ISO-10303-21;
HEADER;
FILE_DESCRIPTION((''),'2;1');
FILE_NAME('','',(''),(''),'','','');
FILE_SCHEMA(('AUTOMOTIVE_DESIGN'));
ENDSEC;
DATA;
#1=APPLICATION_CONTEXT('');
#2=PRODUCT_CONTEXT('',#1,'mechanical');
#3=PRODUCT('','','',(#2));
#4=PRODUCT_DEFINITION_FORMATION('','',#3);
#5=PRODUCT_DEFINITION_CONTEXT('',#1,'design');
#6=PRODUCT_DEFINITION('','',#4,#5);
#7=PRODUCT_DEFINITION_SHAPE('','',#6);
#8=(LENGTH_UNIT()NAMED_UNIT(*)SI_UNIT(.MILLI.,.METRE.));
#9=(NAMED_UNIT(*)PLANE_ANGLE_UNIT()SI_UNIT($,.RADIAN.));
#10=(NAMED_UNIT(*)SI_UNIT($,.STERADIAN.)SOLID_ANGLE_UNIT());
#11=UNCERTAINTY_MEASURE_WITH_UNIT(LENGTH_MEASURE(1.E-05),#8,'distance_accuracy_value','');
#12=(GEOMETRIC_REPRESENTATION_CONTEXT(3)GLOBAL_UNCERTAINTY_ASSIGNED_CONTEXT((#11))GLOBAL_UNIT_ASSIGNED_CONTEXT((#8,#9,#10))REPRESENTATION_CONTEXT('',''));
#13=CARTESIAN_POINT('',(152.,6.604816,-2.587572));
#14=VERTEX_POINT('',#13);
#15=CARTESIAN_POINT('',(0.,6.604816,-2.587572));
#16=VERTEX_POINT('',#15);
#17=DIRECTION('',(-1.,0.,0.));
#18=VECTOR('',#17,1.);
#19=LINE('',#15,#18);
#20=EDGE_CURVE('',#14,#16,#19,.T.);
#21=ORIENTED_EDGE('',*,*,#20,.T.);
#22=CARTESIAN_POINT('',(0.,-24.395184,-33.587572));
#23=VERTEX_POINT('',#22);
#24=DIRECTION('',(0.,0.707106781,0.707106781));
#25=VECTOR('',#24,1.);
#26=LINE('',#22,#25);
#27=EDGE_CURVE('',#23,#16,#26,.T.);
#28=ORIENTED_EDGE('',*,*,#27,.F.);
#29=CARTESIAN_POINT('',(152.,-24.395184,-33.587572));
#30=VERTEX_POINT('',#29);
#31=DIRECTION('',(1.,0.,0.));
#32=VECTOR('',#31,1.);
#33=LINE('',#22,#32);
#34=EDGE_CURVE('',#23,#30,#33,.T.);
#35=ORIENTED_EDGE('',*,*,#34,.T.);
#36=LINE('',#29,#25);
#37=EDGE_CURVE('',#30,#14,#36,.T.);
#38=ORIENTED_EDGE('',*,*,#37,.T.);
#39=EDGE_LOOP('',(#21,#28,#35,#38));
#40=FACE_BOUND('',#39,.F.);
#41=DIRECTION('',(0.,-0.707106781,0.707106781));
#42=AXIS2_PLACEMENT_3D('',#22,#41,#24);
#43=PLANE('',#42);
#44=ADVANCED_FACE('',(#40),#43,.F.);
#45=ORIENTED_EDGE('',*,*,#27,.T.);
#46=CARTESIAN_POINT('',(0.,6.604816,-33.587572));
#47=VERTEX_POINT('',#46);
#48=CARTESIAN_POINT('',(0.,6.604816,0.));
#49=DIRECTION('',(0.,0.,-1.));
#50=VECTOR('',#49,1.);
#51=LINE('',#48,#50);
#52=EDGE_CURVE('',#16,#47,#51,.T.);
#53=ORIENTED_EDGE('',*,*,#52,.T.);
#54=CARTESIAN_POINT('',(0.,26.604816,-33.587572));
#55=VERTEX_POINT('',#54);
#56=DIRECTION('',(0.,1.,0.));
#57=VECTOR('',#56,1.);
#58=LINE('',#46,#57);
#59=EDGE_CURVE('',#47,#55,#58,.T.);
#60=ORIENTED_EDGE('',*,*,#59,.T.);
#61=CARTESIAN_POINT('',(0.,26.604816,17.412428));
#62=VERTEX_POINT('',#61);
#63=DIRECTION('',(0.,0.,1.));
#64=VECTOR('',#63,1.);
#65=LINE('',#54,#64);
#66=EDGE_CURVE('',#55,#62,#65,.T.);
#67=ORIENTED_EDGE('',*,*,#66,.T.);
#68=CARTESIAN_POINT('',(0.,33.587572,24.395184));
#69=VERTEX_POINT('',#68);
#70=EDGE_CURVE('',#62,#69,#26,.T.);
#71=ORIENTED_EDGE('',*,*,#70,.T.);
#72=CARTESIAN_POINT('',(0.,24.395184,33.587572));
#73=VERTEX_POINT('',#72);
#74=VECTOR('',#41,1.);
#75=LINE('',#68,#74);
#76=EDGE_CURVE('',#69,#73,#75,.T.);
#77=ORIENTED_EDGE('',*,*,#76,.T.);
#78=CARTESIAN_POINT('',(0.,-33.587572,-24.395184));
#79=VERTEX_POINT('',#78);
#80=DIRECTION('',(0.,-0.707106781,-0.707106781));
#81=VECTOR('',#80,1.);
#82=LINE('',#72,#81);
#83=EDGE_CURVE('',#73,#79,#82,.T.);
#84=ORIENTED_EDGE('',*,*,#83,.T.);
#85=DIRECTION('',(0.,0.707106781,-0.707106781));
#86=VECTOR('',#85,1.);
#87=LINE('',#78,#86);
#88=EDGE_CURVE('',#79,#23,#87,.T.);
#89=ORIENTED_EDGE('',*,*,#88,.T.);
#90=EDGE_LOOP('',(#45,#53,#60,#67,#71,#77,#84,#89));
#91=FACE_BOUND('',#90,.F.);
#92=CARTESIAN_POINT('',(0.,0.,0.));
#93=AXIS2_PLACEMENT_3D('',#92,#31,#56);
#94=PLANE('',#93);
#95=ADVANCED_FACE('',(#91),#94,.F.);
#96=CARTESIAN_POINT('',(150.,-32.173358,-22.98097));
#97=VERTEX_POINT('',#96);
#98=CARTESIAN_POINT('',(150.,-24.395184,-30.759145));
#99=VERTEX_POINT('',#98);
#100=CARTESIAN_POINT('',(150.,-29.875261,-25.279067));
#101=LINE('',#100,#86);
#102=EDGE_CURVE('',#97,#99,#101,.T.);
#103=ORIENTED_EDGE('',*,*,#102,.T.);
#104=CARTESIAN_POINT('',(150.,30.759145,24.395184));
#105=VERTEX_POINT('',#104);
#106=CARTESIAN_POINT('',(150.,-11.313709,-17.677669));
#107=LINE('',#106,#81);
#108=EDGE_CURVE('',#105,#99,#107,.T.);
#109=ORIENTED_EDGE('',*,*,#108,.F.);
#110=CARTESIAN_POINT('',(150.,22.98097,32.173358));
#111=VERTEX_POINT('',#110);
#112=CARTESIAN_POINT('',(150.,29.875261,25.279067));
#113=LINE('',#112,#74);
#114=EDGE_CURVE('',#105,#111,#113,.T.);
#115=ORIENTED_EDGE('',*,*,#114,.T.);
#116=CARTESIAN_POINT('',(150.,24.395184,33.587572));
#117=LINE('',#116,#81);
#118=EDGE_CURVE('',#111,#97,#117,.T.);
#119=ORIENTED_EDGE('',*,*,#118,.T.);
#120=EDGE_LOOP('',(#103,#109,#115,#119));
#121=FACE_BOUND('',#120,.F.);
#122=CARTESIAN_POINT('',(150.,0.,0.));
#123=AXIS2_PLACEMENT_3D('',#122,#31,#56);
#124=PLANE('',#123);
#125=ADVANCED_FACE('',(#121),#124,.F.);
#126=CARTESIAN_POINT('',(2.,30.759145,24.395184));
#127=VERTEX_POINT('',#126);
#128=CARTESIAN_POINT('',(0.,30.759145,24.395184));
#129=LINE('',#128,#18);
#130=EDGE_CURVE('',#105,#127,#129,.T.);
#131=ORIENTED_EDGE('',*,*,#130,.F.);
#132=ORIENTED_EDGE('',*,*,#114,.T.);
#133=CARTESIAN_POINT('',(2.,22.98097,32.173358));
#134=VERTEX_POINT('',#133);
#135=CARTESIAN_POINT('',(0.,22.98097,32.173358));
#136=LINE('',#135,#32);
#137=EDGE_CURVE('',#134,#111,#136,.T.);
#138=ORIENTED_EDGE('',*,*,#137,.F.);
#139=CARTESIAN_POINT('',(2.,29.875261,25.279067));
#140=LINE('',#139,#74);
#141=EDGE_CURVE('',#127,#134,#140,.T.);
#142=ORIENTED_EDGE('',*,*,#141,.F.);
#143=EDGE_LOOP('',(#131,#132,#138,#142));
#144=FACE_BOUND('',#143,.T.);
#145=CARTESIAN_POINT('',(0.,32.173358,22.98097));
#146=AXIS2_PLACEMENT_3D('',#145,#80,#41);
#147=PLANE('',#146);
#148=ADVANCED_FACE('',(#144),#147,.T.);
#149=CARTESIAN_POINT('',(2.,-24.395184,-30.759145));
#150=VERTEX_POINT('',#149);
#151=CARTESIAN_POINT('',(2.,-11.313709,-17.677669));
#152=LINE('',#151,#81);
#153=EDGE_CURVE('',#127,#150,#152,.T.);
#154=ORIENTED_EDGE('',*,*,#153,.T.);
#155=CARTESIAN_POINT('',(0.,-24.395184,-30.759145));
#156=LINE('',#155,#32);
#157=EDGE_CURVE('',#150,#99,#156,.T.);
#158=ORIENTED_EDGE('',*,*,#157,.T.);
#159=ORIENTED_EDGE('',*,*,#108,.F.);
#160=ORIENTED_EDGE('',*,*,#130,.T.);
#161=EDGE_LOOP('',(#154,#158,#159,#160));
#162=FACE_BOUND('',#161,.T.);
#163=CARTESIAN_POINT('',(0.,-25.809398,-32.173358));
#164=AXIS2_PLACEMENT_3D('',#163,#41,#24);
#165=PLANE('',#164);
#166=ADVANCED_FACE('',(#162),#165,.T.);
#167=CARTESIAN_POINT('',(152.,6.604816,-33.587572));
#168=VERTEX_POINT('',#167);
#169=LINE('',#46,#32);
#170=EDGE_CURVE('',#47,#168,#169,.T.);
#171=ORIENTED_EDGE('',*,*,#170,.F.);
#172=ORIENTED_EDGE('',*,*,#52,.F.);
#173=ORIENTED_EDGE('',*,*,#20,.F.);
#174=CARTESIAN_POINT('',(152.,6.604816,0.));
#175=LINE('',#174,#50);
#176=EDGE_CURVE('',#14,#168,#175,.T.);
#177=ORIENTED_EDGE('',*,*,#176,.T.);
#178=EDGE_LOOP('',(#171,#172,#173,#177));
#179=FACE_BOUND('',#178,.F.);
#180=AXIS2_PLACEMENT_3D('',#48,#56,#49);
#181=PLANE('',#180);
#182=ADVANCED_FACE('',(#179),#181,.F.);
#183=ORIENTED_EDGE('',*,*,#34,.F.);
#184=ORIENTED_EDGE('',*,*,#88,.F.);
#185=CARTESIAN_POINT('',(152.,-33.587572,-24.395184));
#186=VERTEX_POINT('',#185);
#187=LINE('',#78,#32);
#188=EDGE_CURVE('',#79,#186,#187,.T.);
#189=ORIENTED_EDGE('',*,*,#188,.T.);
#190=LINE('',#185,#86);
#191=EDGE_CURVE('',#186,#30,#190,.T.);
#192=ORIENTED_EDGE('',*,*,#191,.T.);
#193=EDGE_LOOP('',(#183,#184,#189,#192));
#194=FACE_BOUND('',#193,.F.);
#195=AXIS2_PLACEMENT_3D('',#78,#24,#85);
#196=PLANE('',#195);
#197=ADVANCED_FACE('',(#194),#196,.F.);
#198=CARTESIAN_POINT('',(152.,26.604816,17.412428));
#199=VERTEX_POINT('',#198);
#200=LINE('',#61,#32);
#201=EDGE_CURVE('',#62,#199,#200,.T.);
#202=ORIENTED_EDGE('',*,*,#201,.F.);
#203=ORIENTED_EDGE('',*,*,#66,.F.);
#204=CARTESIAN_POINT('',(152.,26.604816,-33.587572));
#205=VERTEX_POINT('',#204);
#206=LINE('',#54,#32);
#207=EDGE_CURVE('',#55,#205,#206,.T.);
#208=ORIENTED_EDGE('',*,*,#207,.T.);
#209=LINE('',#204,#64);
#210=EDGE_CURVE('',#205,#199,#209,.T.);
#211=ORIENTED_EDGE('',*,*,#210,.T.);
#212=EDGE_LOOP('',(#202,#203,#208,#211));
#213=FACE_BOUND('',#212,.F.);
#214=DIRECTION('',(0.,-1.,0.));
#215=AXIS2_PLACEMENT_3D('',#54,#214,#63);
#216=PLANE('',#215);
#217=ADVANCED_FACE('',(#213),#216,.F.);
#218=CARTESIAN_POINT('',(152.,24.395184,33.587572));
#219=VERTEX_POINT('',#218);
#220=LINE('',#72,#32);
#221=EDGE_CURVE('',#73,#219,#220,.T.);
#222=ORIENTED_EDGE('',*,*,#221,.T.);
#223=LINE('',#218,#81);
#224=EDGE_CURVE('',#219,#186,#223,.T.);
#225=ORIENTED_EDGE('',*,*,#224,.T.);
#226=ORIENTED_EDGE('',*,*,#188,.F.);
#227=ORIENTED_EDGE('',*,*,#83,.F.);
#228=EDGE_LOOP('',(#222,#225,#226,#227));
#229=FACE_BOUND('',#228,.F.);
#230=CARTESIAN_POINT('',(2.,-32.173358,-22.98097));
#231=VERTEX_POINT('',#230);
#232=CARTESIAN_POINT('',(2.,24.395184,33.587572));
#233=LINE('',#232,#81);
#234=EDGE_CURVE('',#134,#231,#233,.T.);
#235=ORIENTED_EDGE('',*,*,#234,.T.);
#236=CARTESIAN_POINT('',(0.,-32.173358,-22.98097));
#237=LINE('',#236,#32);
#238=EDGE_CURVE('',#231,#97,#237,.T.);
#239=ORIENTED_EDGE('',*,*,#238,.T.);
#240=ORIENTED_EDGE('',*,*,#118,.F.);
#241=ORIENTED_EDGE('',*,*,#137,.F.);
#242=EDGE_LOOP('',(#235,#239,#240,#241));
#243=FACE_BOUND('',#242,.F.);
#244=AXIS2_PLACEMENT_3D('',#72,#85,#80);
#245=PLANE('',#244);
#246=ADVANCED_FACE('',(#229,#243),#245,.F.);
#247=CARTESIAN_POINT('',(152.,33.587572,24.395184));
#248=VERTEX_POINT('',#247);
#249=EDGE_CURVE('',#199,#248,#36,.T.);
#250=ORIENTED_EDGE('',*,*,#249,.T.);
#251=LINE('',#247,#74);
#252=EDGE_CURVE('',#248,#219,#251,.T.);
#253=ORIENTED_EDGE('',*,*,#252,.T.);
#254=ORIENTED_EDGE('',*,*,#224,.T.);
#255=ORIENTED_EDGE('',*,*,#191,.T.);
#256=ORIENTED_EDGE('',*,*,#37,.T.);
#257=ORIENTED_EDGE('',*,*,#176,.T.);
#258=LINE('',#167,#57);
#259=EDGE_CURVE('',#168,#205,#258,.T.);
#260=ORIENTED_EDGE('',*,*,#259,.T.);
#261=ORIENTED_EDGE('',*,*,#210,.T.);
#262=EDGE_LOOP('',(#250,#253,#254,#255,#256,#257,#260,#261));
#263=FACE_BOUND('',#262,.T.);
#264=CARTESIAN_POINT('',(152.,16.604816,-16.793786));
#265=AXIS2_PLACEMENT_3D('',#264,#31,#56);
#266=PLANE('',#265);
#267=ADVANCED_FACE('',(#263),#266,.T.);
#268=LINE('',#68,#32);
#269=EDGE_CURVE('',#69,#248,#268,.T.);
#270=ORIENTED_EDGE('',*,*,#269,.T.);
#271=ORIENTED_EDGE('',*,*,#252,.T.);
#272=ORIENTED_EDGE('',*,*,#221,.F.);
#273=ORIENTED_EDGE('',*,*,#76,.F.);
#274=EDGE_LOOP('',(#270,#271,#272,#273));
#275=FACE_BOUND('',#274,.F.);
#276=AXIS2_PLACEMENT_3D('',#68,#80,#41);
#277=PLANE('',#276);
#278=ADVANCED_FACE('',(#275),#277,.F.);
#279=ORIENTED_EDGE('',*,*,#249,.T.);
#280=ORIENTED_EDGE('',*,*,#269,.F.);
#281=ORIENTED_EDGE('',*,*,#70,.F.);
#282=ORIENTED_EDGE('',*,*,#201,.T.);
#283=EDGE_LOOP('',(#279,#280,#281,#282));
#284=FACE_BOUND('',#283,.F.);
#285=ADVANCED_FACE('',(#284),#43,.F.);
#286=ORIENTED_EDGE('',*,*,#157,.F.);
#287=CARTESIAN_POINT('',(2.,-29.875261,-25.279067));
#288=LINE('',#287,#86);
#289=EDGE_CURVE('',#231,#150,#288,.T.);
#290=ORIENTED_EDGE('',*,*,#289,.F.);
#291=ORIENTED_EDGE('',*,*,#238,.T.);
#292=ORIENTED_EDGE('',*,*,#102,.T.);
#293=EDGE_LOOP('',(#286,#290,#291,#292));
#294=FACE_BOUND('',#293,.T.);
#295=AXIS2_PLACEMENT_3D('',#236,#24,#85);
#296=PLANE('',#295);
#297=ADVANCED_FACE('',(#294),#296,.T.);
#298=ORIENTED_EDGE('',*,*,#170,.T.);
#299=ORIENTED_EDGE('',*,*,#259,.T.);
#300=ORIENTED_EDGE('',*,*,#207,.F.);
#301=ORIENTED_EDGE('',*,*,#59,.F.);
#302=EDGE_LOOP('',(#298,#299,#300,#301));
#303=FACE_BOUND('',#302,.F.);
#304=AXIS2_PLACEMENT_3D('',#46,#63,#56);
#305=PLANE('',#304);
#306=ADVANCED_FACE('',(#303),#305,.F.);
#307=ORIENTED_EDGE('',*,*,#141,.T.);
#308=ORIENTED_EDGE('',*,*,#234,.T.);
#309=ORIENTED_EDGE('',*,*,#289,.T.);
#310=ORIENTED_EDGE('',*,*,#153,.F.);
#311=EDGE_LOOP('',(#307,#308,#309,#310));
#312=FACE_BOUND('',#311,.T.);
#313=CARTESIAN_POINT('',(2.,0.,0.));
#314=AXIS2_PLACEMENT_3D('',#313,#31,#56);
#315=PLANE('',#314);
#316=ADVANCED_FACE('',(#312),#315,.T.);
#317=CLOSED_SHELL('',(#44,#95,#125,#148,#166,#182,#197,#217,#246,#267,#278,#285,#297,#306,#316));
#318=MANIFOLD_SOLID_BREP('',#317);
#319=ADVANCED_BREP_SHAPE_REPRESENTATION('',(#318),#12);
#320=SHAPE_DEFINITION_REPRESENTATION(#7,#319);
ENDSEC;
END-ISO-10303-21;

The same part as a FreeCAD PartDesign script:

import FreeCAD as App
import Part
import Sketcher
Q = App.Units.Quantity


def faces_at(feature, points):
    """Names of the faces that lie closest to the given points."""
    faces = feature.Shape.Faces
    near = lambda p: min(range(len(faces)), key=lambda i: faces[i].distToShape(Part.Vertex(*p))[0])
    return sorted({f"Face{near(p) + 1}" for p in points})

doc = App.newDocument("Part")
body = doc.addObject("PartDesign::Body", "Body")

sketch1 = body.newObject("Sketcher::SketchObject", "Sketch")
sketch1.AttachmentSupport = (doc.getObject("YZ_Plane"), [""])
sketch1.MapMode = "FlatFace"
sketch1.addGeometry(Part.LineSegment(App.Vector(24, 34, 0), App.Vector(-34, -24, 0)), False)
sketch1.addGeometry(Part.LineSegment(App.Vector(-34, -24, 0), App.Vector(-24, -34, 0)), False)
sketch1.addGeometry(Part.LineSegment(App.Vector(-24, -34, 0), App.Vector(34, 24, 0)), False)
sketch1.addGeometry(Part.LineSegment(App.Vector(34, 24, 0), App.Vector(24, 34, 0)), False)
sketch1.addConstraint(Sketcher.Constraint("Coincident", 0, 2, 1, 1))
sketch1.addConstraint(Sketcher.Constraint("Coincident", 1, 2, 2, 1))
sketch1.addConstraint(Sketcher.Constraint("Coincident", 2, 2, 3, 1))
sketch1.addConstraint(Sketcher.Constraint("Coincident", 3, 2, 0, 1))
sketch1.addConstraint(Sketcher.Constraint("Symmetric", 0, 2, 2, 2, -1, 1))
sketch1.addConstraint(Sketcher.Constraint("Symmetric", 1, 2, 3, 2, -1, 1))
sketch1.addConstraint(Sketcher.Constraint("Perpendicular", 0, 1))
sketch1.addConstraint(Sketcher.Constraint("Angle", 0, Q("-135 deg")))
sketch1.addConstraint(Sketcher.Constraint("Distance", 0, Q("82 mm")))
sketch1.addConstraint(Sketcher.Constraint("Distance", 1, Q("13 mm")))
pad1 = body.newObject("PartDesign::Pad", "Pad")
pad1.Profile = sketch1
pad1.Length = 152
doc.recompute()

thickness = body.newObject("PartDesign::Thickness", "Thickness")
thickness.Base = (pad1, faces_at(pad1, [(76, -4.596, 4.596)]))
thickness.Value = 2
thickness.Reversed = True
thickness.Join = "Arc"

sketch2 = body.newObject("Sketcher::SketchObject", "Sketch001")
sketch2.AttachmentSupport = (doc.getObject("YZ_Plane"), [""])
sketch2.MapMode = "FlatFace"
sketch2.addGeometry(Part.LineSegment(App.Vector(6.6, 0, 0), App.Vector(6.6, -33.6, 0)), False)
sketch2.addGeometry(Part.LineSegment(App.Vector(6.6, -33.6, 0), App.Vector(26.6, -33.6, 0)), False)
sketch2.addGeometry(Part.LineSegment(App.Vector(26.6, -33.6, 0), App.Vector(26.6, 18.7, 0)), False)
sketch2.addGeometry(Part.LineSegment(App.Vector(26.6, 18.7, 0), App.Vector(8, 0, 0)), False)
sketch2.addGeometry(Part.LineSegment(App.Vector(8, 0, 0), App.Vector(6.6, 0, 0)), False)
sketch2.addConstraint(Sketcher.Constraint("Coincident", 0, 2, 1, 1))
sketch2.addConstraint(Sketcher.Constraint("Coincident", 1, 2, 2, 1))
sketch2.addConstraint(Sketcher.Constraint("Coincident", 2, 2, 3, 1))
sketch2.addConstraint(Sketcher.Constraint("Coincident", 3, 2, 4, 1))
sketch2.addConstraint(Sketcher.Constraint("Coincident", 4, 2, 0, 1))
sketch2.addConstraint(Sketcher.Constraint("Vertical", 0))
sketch2.addConstraint(Sketcher.Constraint("Horizontal", 1))
sketch2.addConstraint(Sketcher.Constraint("Vertical", 2))
sketch2.addConstraint(Sketcher.Constraint("Horizontal", 4))
sketch2.addConstraint(Sketcher.Constraint("PointOnObject", 3, 2, -1))
sketch2.addConstraint(Sketcher.Constraint("DistanceX", 1, 1, 1, 2, Q("20 mm")))
sketch2.addConstraint(Sketcher.Constraint("DistanceX", 3, 2, 2, 2, Q("18.614398 mm")))
sketch2.addConstraint(Sketcher.Constraint("DistanceY", 0, 2, 0, 1, Q("33.587572 mm")))
sketch2.addConstraint(Sketcher.Constraint("DistanceY", 2, 1, 2, 2, Q("52.320662 mm")))
sketch2.addConstraint(Sketcher.Constraint("DistanceX", -1, 1, 0, 2, Q("6.604816 mm")))
pad2 = body.newObject("PartDesign::Pad", "Pad001")
pad2.Profile = sketch2
pad2.Length = 152

doc.recompute()
